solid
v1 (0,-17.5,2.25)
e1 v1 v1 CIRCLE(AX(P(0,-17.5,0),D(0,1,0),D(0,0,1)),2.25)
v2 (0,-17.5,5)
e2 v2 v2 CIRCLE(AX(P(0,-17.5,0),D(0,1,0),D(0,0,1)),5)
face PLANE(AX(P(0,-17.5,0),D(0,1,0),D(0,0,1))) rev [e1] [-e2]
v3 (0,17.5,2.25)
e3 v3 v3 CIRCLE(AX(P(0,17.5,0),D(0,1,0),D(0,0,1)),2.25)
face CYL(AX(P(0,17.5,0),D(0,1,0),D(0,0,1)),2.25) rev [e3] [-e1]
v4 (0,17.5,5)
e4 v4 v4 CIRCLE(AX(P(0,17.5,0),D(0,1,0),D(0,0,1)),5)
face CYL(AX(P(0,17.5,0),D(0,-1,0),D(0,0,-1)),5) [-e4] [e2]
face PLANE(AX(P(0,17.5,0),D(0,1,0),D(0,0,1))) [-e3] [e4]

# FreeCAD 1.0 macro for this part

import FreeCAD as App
import Part
import Sketcher
from FreeCAD import Vector

doc = App.newDocument("Part")
body = doc.addObject("PartDesign::Body", "Body")

# Sketch on XZ plane
sketch1 = doc.addObject("Sketcher::SketchObject", "Sketch")
body.addObject(sketch1)
sketch1.AttachmentSupport = (doc.XZ_Plane, [""])
sketch1.MapMode = "FlatFace"
sketch1.addGeometry(Part.Circle(Vector(0, 0, 0), Vector(0, 0, 1), 5), False)
sketch1.addConstraint(Sketcher.Constraint("Coincident", 0, 3, -1, 1))
sketch1.addConstraint(Sketcher.Constraint("Diameter", 0, 10.0))
pad1 = doc.addObject("PartDesign::Pad", "Pad")
body.addObject(pad1)
pad1.Profile = sketch1
pad1.Length = 35
pad1.Midplane = True

# Sketch on XZ plane
sketch2 = doc.addObject("Sketcher::SketchObject", "Sketch001")
body.addObject(sketch2)
sketch2.AttachmentSupport = (doc.XZ_Plane, [""])
sketch2.MapMode = "FlatFace"
sketch2.AttachmentOffset = App.Placement(Vector(0, 0, -17.5), App.Rotation())
sketch2.addGeometry(Part.Circle(Vector(0, 0, 0), Vector(0, 0, 1), 2.25), False)
sketch2.addConstraint(Sketcher.Constraint("Coincident", 0, 3, -1, 1))
sketch2.addConstraint(Sketcher.Constraint("Diameter", 0, 4.5))
doc.recompute()
hole = doc.addObject("PartDesign::Hole", "Hole")
body.addObject(hole)
hole.Profile = sketch2
hole.ThreadType = "None"
hole.Diameter = 4.5
hole.DepthType = "ThroughAll"
hole.Reversed = True

doc.recompute()
